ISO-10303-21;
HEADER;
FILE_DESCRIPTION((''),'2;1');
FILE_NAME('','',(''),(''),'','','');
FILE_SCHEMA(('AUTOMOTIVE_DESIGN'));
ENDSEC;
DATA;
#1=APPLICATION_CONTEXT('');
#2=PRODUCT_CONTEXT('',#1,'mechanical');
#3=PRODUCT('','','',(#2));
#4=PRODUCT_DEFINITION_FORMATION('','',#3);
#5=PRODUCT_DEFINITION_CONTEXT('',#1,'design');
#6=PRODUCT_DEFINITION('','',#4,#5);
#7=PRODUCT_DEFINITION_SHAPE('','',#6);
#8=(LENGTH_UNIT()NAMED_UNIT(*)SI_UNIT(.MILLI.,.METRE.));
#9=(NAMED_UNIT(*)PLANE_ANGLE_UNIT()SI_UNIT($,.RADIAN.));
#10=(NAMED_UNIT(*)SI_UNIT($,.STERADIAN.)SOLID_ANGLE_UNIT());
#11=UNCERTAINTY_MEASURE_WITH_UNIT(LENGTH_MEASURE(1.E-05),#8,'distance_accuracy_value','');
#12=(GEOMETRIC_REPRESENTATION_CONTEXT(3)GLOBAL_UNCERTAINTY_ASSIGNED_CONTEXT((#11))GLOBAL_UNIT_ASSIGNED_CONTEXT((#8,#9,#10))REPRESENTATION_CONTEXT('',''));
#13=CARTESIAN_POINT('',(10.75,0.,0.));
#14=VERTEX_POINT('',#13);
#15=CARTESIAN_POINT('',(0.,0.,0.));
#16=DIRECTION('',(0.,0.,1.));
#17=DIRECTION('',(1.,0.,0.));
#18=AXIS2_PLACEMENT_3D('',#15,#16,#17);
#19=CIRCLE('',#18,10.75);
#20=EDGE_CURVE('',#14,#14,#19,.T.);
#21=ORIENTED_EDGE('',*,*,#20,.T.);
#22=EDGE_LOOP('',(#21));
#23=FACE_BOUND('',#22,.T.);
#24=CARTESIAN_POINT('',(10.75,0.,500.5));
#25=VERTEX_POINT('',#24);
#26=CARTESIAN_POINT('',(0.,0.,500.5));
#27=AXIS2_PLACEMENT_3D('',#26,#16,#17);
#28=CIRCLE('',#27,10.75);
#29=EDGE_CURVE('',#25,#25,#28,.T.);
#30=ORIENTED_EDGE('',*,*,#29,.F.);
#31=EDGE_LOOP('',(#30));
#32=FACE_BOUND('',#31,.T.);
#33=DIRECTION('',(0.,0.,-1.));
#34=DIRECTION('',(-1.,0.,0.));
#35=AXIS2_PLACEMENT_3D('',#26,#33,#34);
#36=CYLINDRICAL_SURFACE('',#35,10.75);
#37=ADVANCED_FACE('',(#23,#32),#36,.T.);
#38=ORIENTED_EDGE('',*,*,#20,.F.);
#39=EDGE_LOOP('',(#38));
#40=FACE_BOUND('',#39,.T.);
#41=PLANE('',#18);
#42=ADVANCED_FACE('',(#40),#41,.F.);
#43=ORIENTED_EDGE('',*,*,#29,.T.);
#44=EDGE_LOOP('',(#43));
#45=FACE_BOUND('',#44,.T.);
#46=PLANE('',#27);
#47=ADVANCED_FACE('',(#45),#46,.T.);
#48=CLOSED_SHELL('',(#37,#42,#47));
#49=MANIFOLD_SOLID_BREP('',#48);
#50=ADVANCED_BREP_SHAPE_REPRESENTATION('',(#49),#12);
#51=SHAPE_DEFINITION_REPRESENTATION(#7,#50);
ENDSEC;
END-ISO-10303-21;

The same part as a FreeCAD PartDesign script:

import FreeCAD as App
import Part
import Sketcher
Q = App.Units.Quantity

doc = App.newDocument("Part")
body = doc.addObject("PartDesign::Body", "Body")

sketch1 = body.newObject("Sketcher::SketchObject", "Sketch")
sketch1.AttachmentSupport = (doc.getObject("XY_Plane"), [""])
sketch1.MapMode = "FlatFace"
sketch1.addGeometry(Part.Circle(App.Vector(0, 0, 0), App.Vector(0, 0, 1), 11), False)
sketch1.addConstraint([
    Sketcher.Constraint("Coincident", 0, 3, -1, 1),
    Sketcher.Constraint("Diameter", 0, Q("21.5 mm")),
])
pad1 = body.newObject("PartDesign::Pad", "Pad")
pad1.Profile = sketch1
pad1.Length = 500.5

doc.recompute()
